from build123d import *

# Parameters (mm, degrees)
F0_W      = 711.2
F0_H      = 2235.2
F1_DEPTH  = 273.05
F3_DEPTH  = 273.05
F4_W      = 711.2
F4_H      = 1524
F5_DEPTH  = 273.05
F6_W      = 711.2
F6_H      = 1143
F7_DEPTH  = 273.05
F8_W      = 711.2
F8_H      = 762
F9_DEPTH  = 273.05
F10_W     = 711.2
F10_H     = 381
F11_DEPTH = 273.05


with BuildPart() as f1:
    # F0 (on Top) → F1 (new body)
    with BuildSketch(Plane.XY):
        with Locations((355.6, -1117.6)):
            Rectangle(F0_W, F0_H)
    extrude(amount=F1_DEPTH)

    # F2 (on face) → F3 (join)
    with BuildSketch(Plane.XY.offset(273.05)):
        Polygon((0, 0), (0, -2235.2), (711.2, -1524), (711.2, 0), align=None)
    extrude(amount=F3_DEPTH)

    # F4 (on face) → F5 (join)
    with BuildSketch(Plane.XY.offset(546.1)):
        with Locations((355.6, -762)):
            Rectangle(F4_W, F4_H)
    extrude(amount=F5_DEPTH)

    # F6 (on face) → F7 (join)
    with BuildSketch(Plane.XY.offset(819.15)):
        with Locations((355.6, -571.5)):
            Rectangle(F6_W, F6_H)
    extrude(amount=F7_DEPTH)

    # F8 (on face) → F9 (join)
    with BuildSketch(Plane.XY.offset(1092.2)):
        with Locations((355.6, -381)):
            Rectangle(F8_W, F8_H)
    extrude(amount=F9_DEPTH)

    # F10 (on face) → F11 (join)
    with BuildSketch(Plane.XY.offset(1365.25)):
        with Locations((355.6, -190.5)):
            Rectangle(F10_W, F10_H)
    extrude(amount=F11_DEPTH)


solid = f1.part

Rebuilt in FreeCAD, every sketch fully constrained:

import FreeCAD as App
import Part
import Sketcher

V = App.Vector
Q = App.Units.Quantity


def add_polygon(sketch, points):
    """Adds a closed chain of lines whose ends are joined by coincident constraints."""
    first, n = sketch.GeometryCount, len(points)
    for a, b in zip(points, points[1:] + points[:1]):
        sketch.addGeometry(Part.LineSegment(App.Vector(*a, 0), App.Vector(*b, 0)), False)
    for i in range(n):
        sketch.addConstraint(Sketcher.Constraint("Coincident", first + i, 2, first + (i + 1) % n, 1))

doc = App.newDocument("Part")
params = doc.addObject("Spreadsheet::Sheet", "Params")
for row, (alias, value) in enumerate([
    ("sketch1_width", "28 in"),
    ("sketch1_height", "88 in"),
    ("pad1_length", "10.75 in"),
    ("sketch2_width", "28 in"),
    ("sketch2_height", "88 in"),
    ("sketch2_height2", "60 in"),
    ("pad2_length", "10.75 in"),
    ("sketch3_width", "28 in"),
    ("sketch3_height", "60 in"),
    ("pad3_length", "10.75 in"),
    ("sketch4_width", "28 in"),
    ("sketch4_height", "45 in"),
    ("pad4_length", "10.75 in"),
    ("sketch5_width", "28 in"),
    ("sketch5_height", "30 in"),
    ("pad5_length", "10.75 in"),
    ("sketch6_width", "28 in"),
    ("sketch6_height", "15 in"),
    ("pad6_length", "10.75 in"),
], start=1):
    params.set(f"A{row}", alias)
    params.set(f"B{row}", "=" + value)
    params.setAlias(f"B{row}", alias)

body = doc.addObject("PartDesign::Body", "Body")

# Sketch on XY plane
sketch1 = body.newObject("Sketcher::SketchObject", "Sketch")
sketch1.AttachmentSupport = (doc.getObject("XY_Plane"), [""])
sketch1.MapMode = "FlatFace"
add_polygon(sketch1, [(0, 0), (0, -2235), (711, -2235), (711, 0)])  # lines 0-3
sketch1.addConstraint([
    Sketcher.Constraint("Vertical", 0),
    Sketcher.Constraint("Horizontal", 1),
    Sketcher.Constraint("Vertical", 2),
    Sketcher.Constraint("Horizontal", 3),
    Sketcher.Constraint("Coincident", 3, 2, -1, 1),
    Sketcher.Constraint("DistanceX", 1, 1, 1, 2, Q("28 in")),
    Sketcher.Constraint("DistanceY", 0, 2, 0, 1, Q("88 in")),
])
sketch1.setExpression("Constraints[9]", "Params.sketch1_width")
sketch1.setExpression("Constraints[10]", "Params.sketch1_height")
pad1 = body.newObject("PartDesign::Pad", "Pad")
pad1.Profile = sketch1
pad1.setExpression("Length", "Params.pad1_length")

# Sketch on XY plane
sketch2 = body.newObject("Sketcher::SketchObject", "Sketch001")
sketch2.AttachmentSupport = (doc.getObject("XY_Plane"), [""])
sketch2.MapMode = "FlatFace"
sketch2.AttachmentOffset = App.Placement(V(0, 0, 10.75 * 25.4), App.Rotation())
add_polygon(sketch2, [(0, 0), (0, -2235), (711, -1524), (711, 0)])  # lines 0-3
sketch2.addConstraint([
    Sketcher.Constraint("Vertical", 0),
    Sketcher.Constraint("Vertical", 2),
    Sketcher.Constraint("Horizontal", 3),
    Sketcher.Constraint("Coincident", 3, 2, -1, 1),
    Sketcher.Constraint("DistanceX", 3, 2, 3, 1, Q("28 in")),
    Sketcher.Constraint("DistanceY", 0, 2, 0, 1, Q("88 in")),
    Sketcher.Constraint("DistanceY", 2, 1, 2, 2, Q("60 in")),
])
sketch2.setExpression("Constraints[8]", "Params.sketch2_width")
sketch2.setExpression("Constraints[9]", "Params.sketch2_height")
sketch2.setExpression("Constraints[10]", "Params.sketch2_height2")
pad2 = body.newObject("PartDesign::Pad", "Pad001")
pad2.Profile = sketch2
pad2.setExpression("Length", "Params.pad2_length")

# Sketch on XY plane
sketch3 = body.newObject("Sketcher::SketchObject", "Sketch002")
sketch3.AttachmentSupport = (doc.getObject("XY_Plane"), [""])
sketch3.MapMode = "FlatFace"
sketch3.AttachmentOffset = App.Placement(V(0, 0, 21.5 * 25.4), App.Rotation())
add_polygon(sketch3, [(0, 0), (0, -1524), (711, -1524), (711, 0)])  # lines 0-3
sketch3.addConstraint([
    Sketcher.Constraint("Vertical", 0),
    Sketcher.Constraint("Horizontal", 1),
    Sketcher.Constraint("Vertical", 2),
    Sketcher.Constraint("Horizontal", 3),
    Sketcher.Constraint("Coincident", 3, 2, -1, 1),
    Sketcher.Constraint("DistanceX", 1, 1, 1, 2, Q("28 in")),
    Sketcher.Constraint("DistanceY", 0, 2, 0, 1, Q("60 in")),
])
sketch3.setExpression("Constraints[9]", "Params.sketch3_width")
sketch3.setExpression("Constraints[10]", "Params.sketch3_height")
pad3 = body.newObject("PartDesign::Pad", "Pad002")
pad3.Profile = sketch3
pad3.setExpression("Length", "Params.pad3_length")

# Sketch on XY plane
sketch4 = body.newObject("Sketcher::SketchObject", "Sketch003")
sketch4.AttachmentSupport = (doc.getObject("XY_Plane"), [""])
sketch4.MapMode = "FlatFace"
sketch4.AttachmentOffset = App.Placement(V(0, 0, 32.25 * 25.4), App.Rotation())
add_polygon(sketch4, [(0, 0), (0, -1143), (711, -1143), (711, 0)])  # lines 0-3
sketch4.addConstraint([
    Sketcher.Constraint("Vertical", 0),
    Sketcher.Constraint("Horizontal", 1),
    Sketcher.Constraint("Vertical", 2),
    Sketcher.Constraint("Horizontal", 3),
    Sketcher.Constraint("Coincident", 3, 2, -1, 1),
    Sketcher.Constraint("DistanceX", 1, 1, 1, 2, Q("28 in")),
    Sketcher.Constraint("DistanceY", 0, 2, 0, 1, Q("45 in")),
])
sketch4.setExpression("Constraints[9]", "Params.sketch4_width")
sketch4.setExpression("Constraints[10]", "Params.sketch4_height")
pad4 = body.newObject("PartDesign::Pad", "Pad003")
pad4.Profile = sketch4
pad4.setExpression("Length", "Params.pad4_length")

# Sketch on XY plane
sketch5 = body.newObject("Sketcher::SketchObject", "Sketch004")
sketch5.AttachmentSupport = (doc.getObject("XY_Plane"), [""])
sketch5.MapMode = "FlatFace"
sketch5.AttachmentOffset = App.Placement(V(0, 0, 43 * 25.4), App.Rotation())
add_polygon(sketch5, [(0, 0), (0, -762), (711, -762), (711, 0)])  # lines 0-3
sketch5.addConstraint([
    Sketcher.Constraint("Vertical", 0),
    Sketcher.Constraint("Horizontal", 1),
    Sketcher.Constraint("Vertical", 2),
    Sketcher.Constraint("Horizontal", 3),
    Sketcher.Constraint("Coincident", 3, 2, -1, 1),
    Sketcher.Constraint("DistanceX", 1, 1, 1, 2, Q("28 in")),
    Sketcher.Constraint("DistanceY", 0, 2, 0, 1, Q("30 in")),
])
sketch5.setExpression("Constraints[9]", "Params.sketch5_width")
sketch5.setExpression("Constraints[10]", "Params.sketch5_height")
pad5 = body.newObject("PartDesign::Pad", "Pad004")
pad5.Profile = sketch5
pad5.setExpression("Length", "Params.pad5_length")

# Sketch on XY plane
sketch6 = body.newObject("Sketcher::SketchObject", "Sketch005")
sketch6.AttachmentSupport = (doc.getObject("XY_Plane"), [""])
sketch6.MapMode = "FlatFace"
sketch6.AttachmentOffset = App.Placement(V(0, 0, 53.75 * 25.4), App.Rotation())
add_polygon(sketch6, [(0, 0), (0, -381), (711, -381), (711, 0)])  # lines 0-3
sketch6.addConstraint([
    Sketcher.Constraint("Vertical", 0),
    Sketcher.Constraint("Horizontal", 1),
    Sketcher.Constraint("Vertical", 2),
    Sketcher.Constraint("Horizontal", 3),
    Sketcher.Constraint("Coincident", 3, 2, -1, 1),
    Sketcher.Constraint("DistanceX", 1, 1, 1, 2, Q("28 in")),
    Sketcher.Constraint("DistanceY", 0, 2, 0, 1, Q("15 in")),
])
sketch6.setExpression("Constraints[9]", "Params.sketch6_width")
sketch6.setExpression("Constraints[10]", "Params.sketch6_height")
pad6 = body.newObject("PartDesign::Pad", "Pad005")
pad6.Profile = sketch6
pad6.setExpression("Length", "Params.pad6_length")

doc.recompute()
